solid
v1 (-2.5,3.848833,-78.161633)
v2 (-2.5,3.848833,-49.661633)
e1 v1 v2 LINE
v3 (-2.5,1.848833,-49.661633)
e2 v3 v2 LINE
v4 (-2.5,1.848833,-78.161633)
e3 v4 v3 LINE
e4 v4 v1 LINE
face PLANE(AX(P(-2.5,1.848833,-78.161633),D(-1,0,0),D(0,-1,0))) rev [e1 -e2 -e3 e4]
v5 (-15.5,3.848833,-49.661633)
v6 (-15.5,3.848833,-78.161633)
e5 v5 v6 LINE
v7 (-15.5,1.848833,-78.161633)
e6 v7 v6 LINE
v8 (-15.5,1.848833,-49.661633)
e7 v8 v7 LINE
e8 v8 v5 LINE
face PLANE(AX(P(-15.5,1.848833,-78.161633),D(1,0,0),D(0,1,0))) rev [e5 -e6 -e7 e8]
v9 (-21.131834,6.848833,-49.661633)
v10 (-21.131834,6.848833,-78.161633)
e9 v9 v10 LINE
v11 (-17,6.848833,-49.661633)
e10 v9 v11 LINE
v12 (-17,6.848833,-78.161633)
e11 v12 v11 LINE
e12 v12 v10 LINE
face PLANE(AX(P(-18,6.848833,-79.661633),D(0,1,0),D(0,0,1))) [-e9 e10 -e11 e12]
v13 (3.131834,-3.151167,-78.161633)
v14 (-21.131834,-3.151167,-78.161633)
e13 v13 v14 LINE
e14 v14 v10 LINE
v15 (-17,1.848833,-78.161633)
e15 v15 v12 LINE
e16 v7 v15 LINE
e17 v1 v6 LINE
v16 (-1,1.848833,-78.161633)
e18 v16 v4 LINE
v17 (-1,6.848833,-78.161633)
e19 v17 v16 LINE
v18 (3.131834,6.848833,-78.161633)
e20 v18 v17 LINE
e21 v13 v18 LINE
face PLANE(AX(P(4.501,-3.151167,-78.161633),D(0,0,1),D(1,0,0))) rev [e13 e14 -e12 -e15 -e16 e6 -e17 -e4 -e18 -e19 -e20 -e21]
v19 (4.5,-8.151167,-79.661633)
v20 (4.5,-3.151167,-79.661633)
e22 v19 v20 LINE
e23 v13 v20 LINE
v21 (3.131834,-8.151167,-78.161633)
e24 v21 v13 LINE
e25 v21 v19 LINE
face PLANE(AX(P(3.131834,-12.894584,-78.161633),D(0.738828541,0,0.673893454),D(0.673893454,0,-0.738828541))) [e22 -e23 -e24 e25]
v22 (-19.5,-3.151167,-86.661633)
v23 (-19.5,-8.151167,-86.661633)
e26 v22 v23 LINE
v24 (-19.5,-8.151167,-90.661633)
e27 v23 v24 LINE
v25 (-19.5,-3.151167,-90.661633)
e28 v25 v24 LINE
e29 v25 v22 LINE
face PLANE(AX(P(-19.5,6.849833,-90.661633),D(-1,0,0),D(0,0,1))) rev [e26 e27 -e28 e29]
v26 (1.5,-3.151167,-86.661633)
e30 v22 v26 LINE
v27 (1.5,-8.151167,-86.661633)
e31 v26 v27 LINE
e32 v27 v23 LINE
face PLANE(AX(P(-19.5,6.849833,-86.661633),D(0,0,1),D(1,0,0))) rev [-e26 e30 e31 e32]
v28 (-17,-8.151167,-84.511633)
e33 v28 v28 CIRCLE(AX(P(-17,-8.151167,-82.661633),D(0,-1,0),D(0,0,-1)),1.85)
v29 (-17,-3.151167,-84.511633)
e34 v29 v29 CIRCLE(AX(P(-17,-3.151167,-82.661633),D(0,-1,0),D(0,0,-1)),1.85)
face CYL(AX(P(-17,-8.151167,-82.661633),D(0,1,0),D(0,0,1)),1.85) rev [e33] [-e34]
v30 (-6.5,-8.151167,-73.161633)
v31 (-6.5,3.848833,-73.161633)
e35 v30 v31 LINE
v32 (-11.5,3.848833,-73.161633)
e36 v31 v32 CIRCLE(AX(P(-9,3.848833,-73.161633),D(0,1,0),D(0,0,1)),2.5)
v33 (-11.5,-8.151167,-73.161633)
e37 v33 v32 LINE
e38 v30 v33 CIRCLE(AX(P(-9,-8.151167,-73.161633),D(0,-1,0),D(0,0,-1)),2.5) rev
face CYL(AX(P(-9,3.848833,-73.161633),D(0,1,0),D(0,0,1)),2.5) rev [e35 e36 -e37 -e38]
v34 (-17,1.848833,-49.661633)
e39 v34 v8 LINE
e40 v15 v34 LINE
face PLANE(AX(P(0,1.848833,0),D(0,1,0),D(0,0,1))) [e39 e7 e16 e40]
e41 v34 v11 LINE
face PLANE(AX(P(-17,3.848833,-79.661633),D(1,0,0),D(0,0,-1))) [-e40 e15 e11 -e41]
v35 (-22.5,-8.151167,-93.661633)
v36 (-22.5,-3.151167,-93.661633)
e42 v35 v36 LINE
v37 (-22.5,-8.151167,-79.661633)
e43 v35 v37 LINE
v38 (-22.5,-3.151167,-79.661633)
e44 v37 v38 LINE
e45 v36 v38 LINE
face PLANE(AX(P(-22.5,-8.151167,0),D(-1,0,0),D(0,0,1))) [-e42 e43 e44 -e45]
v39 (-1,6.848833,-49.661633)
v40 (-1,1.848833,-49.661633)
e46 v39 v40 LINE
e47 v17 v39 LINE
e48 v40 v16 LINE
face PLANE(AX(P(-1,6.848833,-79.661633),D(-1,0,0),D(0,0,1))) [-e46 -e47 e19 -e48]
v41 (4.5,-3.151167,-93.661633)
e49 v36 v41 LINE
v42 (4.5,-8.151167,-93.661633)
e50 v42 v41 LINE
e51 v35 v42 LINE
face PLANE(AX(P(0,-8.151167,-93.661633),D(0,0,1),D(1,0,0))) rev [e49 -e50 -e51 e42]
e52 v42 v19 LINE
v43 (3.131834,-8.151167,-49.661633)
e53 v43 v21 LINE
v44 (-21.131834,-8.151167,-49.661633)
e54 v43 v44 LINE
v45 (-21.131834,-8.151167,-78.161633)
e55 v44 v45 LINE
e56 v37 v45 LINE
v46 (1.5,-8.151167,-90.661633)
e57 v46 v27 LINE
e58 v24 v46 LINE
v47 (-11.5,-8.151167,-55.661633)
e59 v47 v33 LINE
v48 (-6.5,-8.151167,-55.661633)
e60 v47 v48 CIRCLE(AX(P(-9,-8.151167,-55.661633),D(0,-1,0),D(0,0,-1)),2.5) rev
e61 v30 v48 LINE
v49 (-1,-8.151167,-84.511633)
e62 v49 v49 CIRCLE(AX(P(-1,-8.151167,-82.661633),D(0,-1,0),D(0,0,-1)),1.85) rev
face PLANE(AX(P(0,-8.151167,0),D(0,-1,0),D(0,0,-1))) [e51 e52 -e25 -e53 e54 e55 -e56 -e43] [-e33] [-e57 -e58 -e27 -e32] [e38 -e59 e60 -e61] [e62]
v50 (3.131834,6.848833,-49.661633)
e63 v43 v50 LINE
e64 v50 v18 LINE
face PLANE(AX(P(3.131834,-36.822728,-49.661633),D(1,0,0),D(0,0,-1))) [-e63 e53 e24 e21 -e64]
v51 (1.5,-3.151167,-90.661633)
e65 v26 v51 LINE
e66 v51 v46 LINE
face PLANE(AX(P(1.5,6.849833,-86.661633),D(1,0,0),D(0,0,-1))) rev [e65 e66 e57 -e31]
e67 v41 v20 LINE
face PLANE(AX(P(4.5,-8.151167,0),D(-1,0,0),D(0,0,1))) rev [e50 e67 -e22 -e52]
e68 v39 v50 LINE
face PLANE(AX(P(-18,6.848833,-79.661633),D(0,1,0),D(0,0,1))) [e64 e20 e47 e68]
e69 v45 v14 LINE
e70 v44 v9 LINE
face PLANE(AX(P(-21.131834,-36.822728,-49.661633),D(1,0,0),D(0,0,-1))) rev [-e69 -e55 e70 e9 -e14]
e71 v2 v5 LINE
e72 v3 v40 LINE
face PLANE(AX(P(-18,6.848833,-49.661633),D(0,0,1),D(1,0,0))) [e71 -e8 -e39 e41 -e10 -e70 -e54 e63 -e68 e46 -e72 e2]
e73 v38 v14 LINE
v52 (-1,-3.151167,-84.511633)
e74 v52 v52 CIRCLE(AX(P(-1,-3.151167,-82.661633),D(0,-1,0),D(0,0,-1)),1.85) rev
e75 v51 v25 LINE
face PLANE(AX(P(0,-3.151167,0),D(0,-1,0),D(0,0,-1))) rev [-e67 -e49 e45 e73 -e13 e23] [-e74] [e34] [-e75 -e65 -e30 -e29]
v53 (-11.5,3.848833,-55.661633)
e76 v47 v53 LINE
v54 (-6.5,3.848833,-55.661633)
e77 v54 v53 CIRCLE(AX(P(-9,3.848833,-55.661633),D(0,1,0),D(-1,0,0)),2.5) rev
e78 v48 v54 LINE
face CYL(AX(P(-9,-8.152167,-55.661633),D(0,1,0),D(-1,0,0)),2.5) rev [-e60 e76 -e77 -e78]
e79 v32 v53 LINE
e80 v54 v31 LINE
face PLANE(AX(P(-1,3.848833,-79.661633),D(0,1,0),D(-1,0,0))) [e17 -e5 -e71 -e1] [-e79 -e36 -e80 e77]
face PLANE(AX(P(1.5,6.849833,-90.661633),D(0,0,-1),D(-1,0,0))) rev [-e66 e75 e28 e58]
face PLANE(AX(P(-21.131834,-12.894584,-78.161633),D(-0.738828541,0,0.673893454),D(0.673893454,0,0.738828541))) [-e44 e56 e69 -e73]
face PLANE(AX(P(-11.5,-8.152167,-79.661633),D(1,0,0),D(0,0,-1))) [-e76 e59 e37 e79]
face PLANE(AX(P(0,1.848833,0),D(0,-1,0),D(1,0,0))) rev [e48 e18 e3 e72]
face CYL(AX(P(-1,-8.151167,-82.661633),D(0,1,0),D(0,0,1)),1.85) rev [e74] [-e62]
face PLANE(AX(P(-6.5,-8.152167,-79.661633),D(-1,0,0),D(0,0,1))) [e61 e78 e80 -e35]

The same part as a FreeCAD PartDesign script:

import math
import FreeCAD as App
import Part
import Sketcher

V = App.Vector

doc = App.newDocument("Part")
body = doc.addObject("PartDesign::Body", "Body")

# Sketch on YZ plane
sketch1 = doc.addObject("Sketcher::SketchObject", "Sketch")
body.addObject(sketch1)
sketch1.AttachmentSupport = (doc.YZ_Plane, [""])
sketch1.MapMode = "FlatFace"
sketch1.addGeometry([
    Part.LineSegment(V(7, -50, 0), V(-3, -50, 0)),
    Part.LineSegment(V(-3, -50, 0), V(-3, -80, 0)),
    Part.LineSegment(V(-3, -80, 0), V(7, -80, 0)),
    Part.LineSegment(V(7, -80, 0), V(7, -50, 0)),
], False)
sketch1.addConstraint([
    Sketcher.Constraint("Coincident", 0, 2, 1, 1),
    Sketcher.Constraint("Coincident", 1, 2, 2, 1),
    Sketcher.Constraint("Coincident", 2, 2, 3, 1),
    Sketcher.Constraint("Coincident", 3, 2, 0, 1),
    Sketcher.Constraint("Horizontal", 0),
    Sketcher.Constraint("Vertical", 1),
    Sketcher.Constraint("Horizontal", 2),
    Sketcher.Constraint("Vertical", 3),
    Sketcher.Constraint("DistanceX", 0, 2, 0, 1, 10.0),
    Sketcher.Constraint("DistanceY", 1, 2, 1, 1, 30.0),
    Sketcher.Constraint("DistanceX", 0, 2, -1, 1, 3.151167),
    Sketcher.Constraint("DistanceY", 0, 2, -1, 1, 49.661633),
])
pad1 = doc.addObject("PartDesign::Pad", "Pad")
body.addObject(pad1)
pad1.Profile = sketch1
pad1.Length = 18
pad1.Reversed = True

# Sketch on XY plane
sketch2 = doc.addObject("Sketcher::SketchObject", "Sketch001")
body.addObject(sketch2)
sketch2.AttachmentSupport = (doc.XY_Plane, [""])
sketch2.MapMode = "FlatFace"
sketch2.AttachmentOffset = App.Placement(V(0, 0, -49.661633), App.Rotation())
sketch2.addGeometry([
    Part.LineSegment(V(-17, 3.8, 0), V(-17, 6.8, 0)),
    Part.LineSegment(V(-17, 6.8, 0), V(-1, 6.8, 0)),
    Part.LineSegment(V(-1, 6.8, 0), V(-1, 3.8, 0)),
    Part.LineSegment(V(-1, 3.8, 0), V(-17, 3.8, 0)),
], False)
sketch2.addConstraint([
    Sketcher.Constraint("Coincident", 0, 2, 1, 1),
    Sketcher.Constraint("Coincident", 1, 2, 2, 1),
    Sketcher.Constraint("Coincident", 2, 2, 3, 1),
    Sketcher.Constraint("Coincident", 3, 2, 0, 1),
    Sketcher.Constraint("Vertical", 0),
    Sketcher.Constraint("Horizontal", 1),
    Sketcher.Constraint("Vertical", 2),
    Sketcher.Constraint("Horizontal", 3),
    Sketcher.Constraint("DistanceX", 1, 1, 1, 2, 16.0),
    Sketcher.Constraint("DistanceY", 0, 1, 0, 2, 3.0),
    Sketcher.Constraint("DistanceX", 0, 2, -1, 1, 17.0),
    Sketcher.Constraint("DistanceY", -1, 1, 0, 2, 6.848833),
])
pocket1 = doc.addObject("PartDesign::Pocket", "Pocket")
body.addObject(pocket1)
pocket1.Profile = sketch2
pocket1.Type = "ThroughAll"

# Sketch on XZ plane
sketch3 = doc.addObject("Sketcher::SketchObject", "Sketch002")
body.addObject(sketch3)
sketch3.AttachmentSupport = (doc.XZ_Plane, [""])
sketch3.MapMode = "FlatFace"
sketch3.AttachmentOffset = App.Placement(V(0, 0, -3.848833), App.Rotation())
sketch3.addGeometry(Part.Circle(V(-9, -65.2, 0), V(0, 0, 1), 2.5), False)
sketch3.addConstraint([
    Sketcher.Constraint("Diameter", 0, 5.0),
    Sketcher.Constraint("DistanceX", 0, 3, -1, 1, 9.0),
    Sketcher.Constraint("DistanceY", 0, 3, -1, 1, 65.161633),
])
doc.recompute()
hole = doc.addObject("PartDesign::Hole", "Hole")
body.addObject(hole)
hole.Profile = sketch3
hole.ThreadType = "None"
hole.Diameter = 5
hole.DepthType = "ThroughAll"
hole.Reversed = True

# Sketch on XZ plane
sketch4 = doc.addObject("Sketcher::SketchObject", "Sketch003")
body.addObject(sketch4)
sketch4.AttachmentSupport = (doc.XZ_Plane, [""])
sketch4.MapMode = "FlatFace"
sketch4.AttachmentOffset = App.Placement(V(0, 0, -3.848833), App.Rotation())
sketch4.addGeometry(Part.Circle(V(-9, -73.2, 0), V(0, 0, 1), 2.5), False)
sketch4.addConstraint([
    Sketcher.Constraint("Diameter", 0, 5.0),
    Sketcher.Constraint("DistanceX", 0, 3, -1, 1, 9.0),
    Sketcher.Constraint("DistanceY", 0, 3, -1, 1, 73.161633),
])
doc.recompute()
hole2 = doc.addObject("PartDesign::Hole", "Hole001")
body.addObject(hole2)
hole2.Profile = sketch4
hole2.ThreadType = "None"
hole2.Diameter = 5
hole2.DepthType = "ThroughAll"
hole2.Reversed = True

# Sketch on XZ plane
sketch5 = doc.addObject("Sketcher::SketchObject", "Sketch004")
body.addObject(sketch5)
sketch5.AttachmentSupport = (doc.XZ_Plane, [""])
sketch5.MapMode = "FlatFace"
sketch5.AttachmentOffset = App.Placement(V(0, 0, 8.151167), App.Rotation())
sketch5.addGeometry([
    Part.LineSegment(V(-18, -49.7, 0), V(-18, -79.7, 0)),  # 0
    Part.LineSegment(V(-18, -79.7, 0), V(-22.5, -79.7, 0)),  # 1
    Part.LineSegment(V(-22.5, -79.7, 0), V(-22.5, -93.7, 0)),  # 2
    Part.LineSegment(V(-22.5, -93.7, 0), V(4.5, -93.7, 0)),  # 3
    Part.LineSegment(V(4.5, -93.7, 0), V(4.5, -79.7, 0)),  # 4
    Part.LineSegment(V(4.5, -79.7, 0), V(0, -79.7, 0)),  # 5
    Part.LineSegment(V(0, -79.7, 0), V(0, -49.7, 0)),  # 6
    Part.LineSegment(V(0, -49.7, 0), V(-18, -49.7, 0)),  # 7
    Part.Circle(V(-9, -73.2, 0), V(0, 0, 1), 2.5),  # 8
    Part.Circle(V(-9, -65.2, 0), V(0, 0, 1), 2.5),  # 9
    Part.Circle(V(-17, -82.7, 0), V(0, 0, 1), 1.9),  # 10
    Part.Circle(V(-1, -82.7, 0), V(0, 0, 1), 1.9),  # 11
], False)
sketch5.addConstraint([
    Sketcher.Constraint("Coincident", 0, 2, 1, 1),
    Sketcher.Constraint("Coincident", 1, 2, 2, 1),
    Sketcher.Constraint("Coincident", 2, 2, 3, 1),
    Sketcher.Constraint("Coincident", 3, 2, 4, 1),
    Sketcher.Constraint("Coincident", 4, 2, 5, 1),
    Sketcher.Constraint("Coincident", 5, 2, 6, 1),
    Sketcher.Constraint("Coincident", 6, 2, 7, 1),
    Sketcher.Constraint("Coincident", 7, 2, 0, 1),
    Sketcher.Constraint("Vertical", 0),
    Sketcher.Constraint("Horizontal", 1),
    Sketcher.Constraint("Vertical", 2),
    Sketcher.Constraint("Horizontal", 3),
    Sketcher.Constraint("Vertical", 4),
    Sketcher.Constraint("Horizontal", 5),
    Sketcher.Constraint("Vertical", 6),
    Sketcher.Constraint("Horizontal", 7),
    Sketcher.Constraint("Equal", 8, 9),
    Sketcher.Constraint("Equal", 10, 11),
    Sketcher.Constraint("PointOnObject", 5, 2, -2),
    Sketcher.Constraint("Horizontal", 10, 3, 11, 3),
    Sketcher.Constraint("Horizontal", 1, 2, 4, 2),
    Sketcher.Constraint("Vertical", 8, 3, 9, 3),
    Sketcher.Constraint("Equal", 1, 5),
    Sketcher.Constraint("Diameter", 8, 5.0),
    Sketcher.Constraint("Diameter", 10, 3.7),
    Sketcher.Constraint("DistanceX", 3, 1, 3, 2, 27.0),
    Sketcher.Constraint("DistanceX", 7, 2, 7, 1, 18.0),
    Sketcher.Constraint("DistanceY", 0, 2, 0, 1, 30.0),
    Sketcher.Constraint("DistanceY", 2, 2, 2, 1, 14.0),
    Sketcher.Constraint("DistanceX", 8, 3, -1, 1, 9.0),
    Sketcher.Constraint("DistanceX", 10, 3, -1, 1, 17.0),
    Sketcher.Constraint("DistanceX", 11, 3, -1, 1, 1.0),
    Sketcher.Constraint("DistanceY", 8, 3, 9, 3, 8.0),
    Sketcher.Constraint("DistanceY", 10, 3, 0, 2, 3.0),
    Sketcher.Constraint("DistanceY", 10, 3, 8, 3, 9.5),
    Sketcher.Constraint("DistanceY", 8, 3, -1, 1, 73.161633),
])
pad2 = doc.addObject("PartDesign::Pad", "Pad001")
body.addObject(pad2)
pad2.Profile = sketch5
pad2.Length = 5
pad2.Reversed = True

# Sketch on XZ plane
sketch6 = doc.addObject("Sketcher::SketchObject", "Sketch005")
body.addObject(sketch6)
sketch6.AttachmentSupport = (doc.XZ_Plane, [""])
sketch6.MapMode = "FlatFace"
sketch6.AttachmentOffset = App.Placement(V(0, 0, 8.151167), App.Rotation())
sketch6.addGeometry([
    Part.LineSegment(V(1.5, -90.7, 0), V(1.5, -86.7, 0)),
    Part.LineSegment(V(1.5, -86.7, 0), V(-19.5, -86.7, 0)),
    Part.LineSegment(V(-19.5, -86.7, 0), V(-19.5, -90.7, 0)),
    Part.LineSegment(V(-19.5, -90.7, 0), V(1.5, -90.7, 0)),
], False)
sketch6.addConstraint([
    Sketcher.Constraint("Coincident", 0, 2, 1, 1),
    Sketcher.Constraint("Coincident", 1, 2, 2, 1),
    Sketcher.Constraint("Coincident", 2, 2, 3, 1),
    Sketcher.Constraint("Coincident", 3, 2, 0, 1),
    Sketcher.Constraint("Vertical", 0),
    Sketcher.Constraint("Horizontal", 1),
    Sketcher.Constraint("Vertical", 2),
    Sketcher.Constraint("Horizontal", 3),
    Sketcher.Constraint("DistanceX", 1, 2, 1, 1, 21.0),
    Sketcher.Constraint("DistanceY", 0, 1, 0, 2, 4.0),
    Sketcher.Constraint("DistanceX", -1, 1, 0, 2, 1.5),
    Sketcher.Constraint("DistanceY", 0, 2, -1, 1, 86.661633),
])
pocket2 = doc.addObject("PartDesign::Pocket", "Pocket001")
body.addObject(pocket2)
pocket2.Profile = sketch6
pocket2.Type = "UpToFirst"

# Sketch on YZ plane
sketch7 = doc.addObject("Sketcher::SketchObject", "Sketch006")
body.addObject(sketch7)
sketch7.AttachmentSupport = (doc.YZ_Plane, [""])
sketch7.MapMode = "FlatFace"
sketch7.AttachmentOffset = App.Placement(V(0, 0, -18), App.Rotation())
sketch7.addGeometry([
    Part.LineSegment(V(6.8, -79.7, 0), V(-3.2, -79.7, 0)),
    Part.LineSegment(V(-3.2, -79.7, 0), V(-3.2, -78.2, 0)),
    Part.LineSegment(V(-3.2, -78.2, 0), V(6.8, -78.2, 0)),
    Part.LineSegment(V(6.8, -78.2, 0), V(6.8, -79.7, 0)),
], False)
sketch7.addConstraint([
    Sketcher.Constraint("Coincident", 0, 2, 1, 1),
    Sketcher.Constraint("Coincident", 1, 2, 2, 1),
    Sketcher.Constraint("Coincident", 2, 2, 3, 1),
    Sketcher.Constraint("Coincident", 3, 2, 0, 1),
    Sketcher.Constraint("Horizontal", 0),
    Sketcher.Constraint("Vertical", 1),
    Sketcher.Constraint("Horizontal", 2),
    Sketcher.Constraint("Vertical", 3),
    Sketcher.Constraint("DistanceX", 0, 2, 0, 1, 10.0),
    Sketcher.Constraint("DistanceY", 1, 1, 1, 2, 1.5),
    Sketcher.Constraint("DistanceX", 0, 2, -1, 1, 3.151167),
    Sketcher.Constraint("DistanceY", 0, 2, -1, 1, 79.661633),
])
pocket3 = doc.addObject("PartDesign::Pocket", "Pocket002")
body.addObject(pocket3)
pocket3.Profile = sketch7
pocket3.Type = "UpToFirst"
pocket3.Reversed = True

# Sketch on XZ plane
sketch8 = doc.addObject("Sketcher::SketchObject", "Sketch007")
body.addObject(sketch8)
sketch8.AttachmentSupport = (doc.XZ_Plane, [""])
sketch8.MapMode = "FlatFace"
sketch8.AttachmentOffset = App.Placement(V(0, 0, -6.848833), App.Rotation())
sketch8.addGeometry([
    Part.LineSegment(V(-21.1, -78.2, 0), V(-21.1, -49.7, 0)),  # 0
    Part.LineSegment(V(-21.1, -49.7, 0), V(-18, -49.7, 0)),  # 1
    Part.LineSegment(V(-18, -49.7, 0), V(-18, -78.2, 0)),  # 2
    Part.LineSegment(V(-18, -78.2, 0), V(-21.1, -78.2, 0)),  # 3
    Part.LineSegment(V(0, -78.2, 0), V(0, -49.7, 0)),  # 4
    Part.LineSegment(V(0, -49.7, 0), V(3.1, -49.7, 0)),  # 5
    Part.LineSegment(V(3.1, -49.7, 0), V(3.1, -78.2, 0)),  # 6
    Part.LineSegment(V(3.1, -78.2, 0), V(0, -78.2, 0)),  # 7
], False)
sketch8.addConstraint([
    Sketcher.Constraint("Coincident", 0, 2, 1, 1),
    Sketcher.Constraint("Coincident", 1, 2, 2, 1),
    Sketcher.Constraint("Coincident", 2, 2, 3, 1),
    Sketcher.Constraint("Coincident", 3, 2, 0, 1),
    Sketcher.Constraint("Coincident", 4, 2, 5, 1),
    Sketcher.Constraint("Coincident", 5, 2, 6, 1),
    Sketcher.Constraint("Coincident", 6, 2, 7, 1),
    Sketcher.Constraint("Coincident", 7, 2, 4, 1),
    Sketcher.Constraint("Vertical", 0),
    Sketcher.Constraint("Horizontal", 1),
    Sketcher.Constraint("Vertical", 2),
    Sketcher.Constraint("Horizontal", 3),
    Sketcher.Constraint("Vertical", 4),
    Sketcher.Constraint("Horizontal", 5),
    Sketcher.Constraint("Vertical", 6),
    Sketcher.Constraint("Horizontal", 7),
    Sketcher.Constraint("PointOnObject", 4, 2, -2),
    Sketcher.Constraint("Horizontal", 1, 2, 4, 2),
    Sketcher.Constraint("Horizontal", 3, 2, 6, 2),
    Sketcher.Constraint("Equal", 3, 5),
    Sketcher.Constraint("DistanceY", 0, 1, 0, 2, 28.5),
    Sketcher.Constraint("DistanceX", 1, 2, -1, 1, 18.0),
    Sketcher.Constraint("DistanceX", 1, 1, 1, 2, 3.131834),
    Sketcher.Constraint("DistanceY", 0, 2, -1, 1, 49.661633),
])
pad3 = doc.addObject("PartDesign::Pad", "Pad002")
body.addObject(pad3)
pad3.Profile = sketch8
pad3.Length = 15

# Sketch on XZ plane
sketch9 = doc.addObject("Sketcher::SketchObject", "Sketch008")
body.addObject(sketch9)
sketch9.AttachmentSupport = (doc.XZ_Plane, [""])
sketch9.MapMode = "FlatFace"
sketch9.AttachmentOffset = App.Placement(V(0, 0, -3.848833), App.Rotation())
sketch9.addGeometry([
    Part.LineSegment(V(-17, -78.2, 0), V(-17, -49.7, 0)),  # 0
    Part.LineSegment(V(-17, -49.7, 0), V(-15.5, -49.7, 0)),  # 1
    Part.LineSegment(V(-15.5, -49.7, 0), V(-15.5, -78.2, 0)),  # 2
    Part.LineSegment(V(-15.5, -78.2, 0), V(-17, -78.2, 0)),  # 3
    Part.LineSegment(V(-2.5, -78.2, 0), V(-2.5, -49.7, 0)),  # 4
    Part.LineSegment(V(-2.5, -49.7, 0), V(-1, -49.7, 0)),  # 5
    Part.LineSegment(V(-1, -49.7, 0), V(-1, -78.2, 0)),  # 6
    Part.LineSegment(V(-1, -78.2, 0), V(-2.5, -78.2, 0)),  # 7
], False)
sketch9.addConstraint([
    Sketcher.Constraint("Coincident", 0, 2, 1, 1),
    Sketcher.Constraint("Coincident", 1, 2, 2, 1),
    Sketcher.Constraint("Coincident", 2, 2, 3, 1),
    Sketcher.Constraint("Coincident", 3, 2, 0, 1),
    Sketcher.Constraint("Coincident", 4, 2, 5, 1),
    Sketcher.Constraint("Coincident", 5, 2, 6, 1),
    Sketcher.Constraint("Coincident", 6, 2, 7, 1),
    Sketcher.Constraint("Coincident", 7, 2, 4, 1),
    Sketcher.Constraint("Vertical", 0),
    Sketcher.Constraint("Horizontal", 1),
    Sketcher.Constraint("Vertical", 2),
    Sketcher.Constraint("Horizontal", 3),
    Sketcher.Constraint("Vertical", 4),
    Sketcher.Constraint("Horizontal", 5),
    Sketcher.Constraint("Vertical", 6),
    Sketcher.Constraint("Horizontal", 7),
    Sketcher.Constraint("Horizontal", 1, 2, 4, 2),
    Sketcher.Constraint("Horizontal", 3, 2, 6, 2),
    Sketcher.Constraint("Equal", 3, 5),
    Sketcher.Constraint("DistanceX", 1, 1, 1, 2, 1.5),
    Sketcher.Constraint("DistanceY", 0, 1, 0, 2, 28.5),
    Sketcher.Constraint("DistanceX", 0, 2, -1, 1, 17.0),
    Sketcher.Constraint("DistanceX", 5, 2, -1, 1, 1.0),
    Sketcher.Constraint("DistanceY", 0, 2, -1, 1, 49.661633),
])
pocket4 = doc.addObject("PartDesign::Pocket", "Pocket003")
body.addObject(pocket4)
pocket4.Profile = sketch9
pocket4.Length = 2
pocket4.Reversed = True

# Sketch on XZ plane
sketch10 = doc.addObject("Sketcher::SketchObject", "Sketch009")
body.addObject(sketch10)
sketch10.AttachmentSupport = (doc.XZ_Plane, [""])
sketch10.MapMode = "FlatFace"
sketch10.AttachmentOffset = App.Placement(V(0, 0, 8.151167), App.Rotation())
sketch10.addGeometry([
    Part.LineSegment(V(-6.5, -55.7, 0), V(-6.5, -73.2, 0)),
    Part.ArcOfCircle(Part.Circle(V(-9, -73.2, 0), V(0, 0, 1), 2.5), math.radians(180), math.radians(360)),
    Part.LineSegment(V(-11.5, -73.2, 0), V(-11.5, -55.7, 0)),
    Part.ArcOfCircle(Part.Circle(V(-9, -55.7, 0), V(0, 0, 1), 2.5), math.radians(0), math.radians(180)),
], False)
sketch10.addConstraint([
    Sketcher.Constraint("Tangent", 0, 2, 1, 2),
    Sketcher.Constraint("Tangent", 1, 1, 2, 1),
    Sketcher.Constraint("Tangent", 2, 2, 3, 2),
    Sketcher.Constraint("Tangent", 3, 1, 0, 1),
    Sketcher.Constraint("Vertical", 0),
    Sketcher.Constraint("Vertical", 2),
    Sketcher.Constraint("Radius", 1, 2.5),
    Sketcher.Constraint("DistanceY", 0, 2, 0, 1, 17.5),
    Sketcher.Constraint("DistanceX", 1, 3, -1, 1, 9.0),
    Sketcher.Constraint("DistanceY", 1, 3, -1, 1, 73.161633),
])
pocket5 = doc.addObject("PartDesign::Pocket", "Pocket004")
body.addObject(pocket5)
pocket5.Profile = sketch10
pocket5.Length = 15

# Sketch on XZ plane
sketch11 = doc.addObject("Sketcher::SketchObject", "Sketch010")
body.addObject(sketch11)
sketch11.AttachmentSupport = (doc.XZ_Plane, [""])
sketch11.MapMode = "FlatFace"
sketch11.AttachmentOffset = App.Placement(V(0, 0, 3.151167), App.Rotation())
sketch11.addGeometry([
    Part.LineSegment(V(-18, -78.2, 0), V(-18, -79.7, 0)),  # 0
    Part.LineSegment(V(-18, -79.7, 0), V(-22.5, -79.7, 0)),  # 1
    Part.LineSegment(V(-22.5, -79.7, 0), V(-21.1, -78.2, 0)),  # 2
    Part.LineSegment(V(-21.1, -78.2, 0), V(-18, -78.2, 0)),  # 3
    Part.LineSegment(V(0, -78.2, 0), V(3.1, -78.2, 0)),  # 4
    Part.LineSegment(V(3.1, -78.2, 0), V(4.5, -79.7, 0)),  # 5
    Part.LineSegment(V(4.5, -79.7, 0), V(0, -79.7, 0)),  # 6
    Part.LineSegment(V(0, -79.7, 0), V(0, -78.2, 0)),  # 7
], False)
sketch11.addConstraint([
    Sketcher.Constraint("Coincident", 0, 2, 1, 1),
    Sketcher.Constraint("Coincident", 1, 2, 2, 1),
    Sketcher.Constraint("Coincident", 2, 2, 3, 1),
    Sketcher.Constraint("Coincident", 3, 2, 0, 1),
    Sketcher.Constraint("Coincident", 4, 2, 5, 1),
    Sketcher.Constraint("Coincident", 5, 2, 6, 1),
    Sketcher.Constraint("Coincident", 6, 2, 7, 1),
    Sketcher.Constraint("Coincident", 7, 2, 4, 1),
    Sketcher.Constraint("Vertical", 0),
    Sketcher.Constraint("Horizontal", 1),
    Sketcher.Constraint("Horizontal", 3),
    Sketcher.Constraint("Horizontal", 4),
    Sketcher.Constraint("Horizontal", 6),
    Sketcher.Constraint("Vertical", 7),
    Sketcher.Constraint("PointOnObject", 6, 2, -2),
    Sketcher.Constraint("Horizontal", 3, 2, 4, 2),
    Sketcher.Constraint("Horizontal", 1, 2, 5, 2),
    Sketcher.Constraint("Equal", 3, 4),
    Sketcher.Constraint("Equal", 1, 6),
    Sketcher.Constraint("DistanceX", 1, 2, 1, 1, 4.5),
    Sketcher.Constraint("DistanceY", 0, 2, 0, 1, 1.5),
    Sketcher.Constraint("DistanceX", 0, 2, -1, 1, 18.0),
    Sketcher.Constraint("Distance", 2, 2.030241),
    Sketcher.Constraint("DistanceY", 0, 2, -1, 1, 79.661633),
])
pad4 = doc.addObject("PartDesign::Pad", "Pad003")
body.addObject(pad4)
pad4.Profile = sketch11
pad4.Length = 5

doc.recompute()
